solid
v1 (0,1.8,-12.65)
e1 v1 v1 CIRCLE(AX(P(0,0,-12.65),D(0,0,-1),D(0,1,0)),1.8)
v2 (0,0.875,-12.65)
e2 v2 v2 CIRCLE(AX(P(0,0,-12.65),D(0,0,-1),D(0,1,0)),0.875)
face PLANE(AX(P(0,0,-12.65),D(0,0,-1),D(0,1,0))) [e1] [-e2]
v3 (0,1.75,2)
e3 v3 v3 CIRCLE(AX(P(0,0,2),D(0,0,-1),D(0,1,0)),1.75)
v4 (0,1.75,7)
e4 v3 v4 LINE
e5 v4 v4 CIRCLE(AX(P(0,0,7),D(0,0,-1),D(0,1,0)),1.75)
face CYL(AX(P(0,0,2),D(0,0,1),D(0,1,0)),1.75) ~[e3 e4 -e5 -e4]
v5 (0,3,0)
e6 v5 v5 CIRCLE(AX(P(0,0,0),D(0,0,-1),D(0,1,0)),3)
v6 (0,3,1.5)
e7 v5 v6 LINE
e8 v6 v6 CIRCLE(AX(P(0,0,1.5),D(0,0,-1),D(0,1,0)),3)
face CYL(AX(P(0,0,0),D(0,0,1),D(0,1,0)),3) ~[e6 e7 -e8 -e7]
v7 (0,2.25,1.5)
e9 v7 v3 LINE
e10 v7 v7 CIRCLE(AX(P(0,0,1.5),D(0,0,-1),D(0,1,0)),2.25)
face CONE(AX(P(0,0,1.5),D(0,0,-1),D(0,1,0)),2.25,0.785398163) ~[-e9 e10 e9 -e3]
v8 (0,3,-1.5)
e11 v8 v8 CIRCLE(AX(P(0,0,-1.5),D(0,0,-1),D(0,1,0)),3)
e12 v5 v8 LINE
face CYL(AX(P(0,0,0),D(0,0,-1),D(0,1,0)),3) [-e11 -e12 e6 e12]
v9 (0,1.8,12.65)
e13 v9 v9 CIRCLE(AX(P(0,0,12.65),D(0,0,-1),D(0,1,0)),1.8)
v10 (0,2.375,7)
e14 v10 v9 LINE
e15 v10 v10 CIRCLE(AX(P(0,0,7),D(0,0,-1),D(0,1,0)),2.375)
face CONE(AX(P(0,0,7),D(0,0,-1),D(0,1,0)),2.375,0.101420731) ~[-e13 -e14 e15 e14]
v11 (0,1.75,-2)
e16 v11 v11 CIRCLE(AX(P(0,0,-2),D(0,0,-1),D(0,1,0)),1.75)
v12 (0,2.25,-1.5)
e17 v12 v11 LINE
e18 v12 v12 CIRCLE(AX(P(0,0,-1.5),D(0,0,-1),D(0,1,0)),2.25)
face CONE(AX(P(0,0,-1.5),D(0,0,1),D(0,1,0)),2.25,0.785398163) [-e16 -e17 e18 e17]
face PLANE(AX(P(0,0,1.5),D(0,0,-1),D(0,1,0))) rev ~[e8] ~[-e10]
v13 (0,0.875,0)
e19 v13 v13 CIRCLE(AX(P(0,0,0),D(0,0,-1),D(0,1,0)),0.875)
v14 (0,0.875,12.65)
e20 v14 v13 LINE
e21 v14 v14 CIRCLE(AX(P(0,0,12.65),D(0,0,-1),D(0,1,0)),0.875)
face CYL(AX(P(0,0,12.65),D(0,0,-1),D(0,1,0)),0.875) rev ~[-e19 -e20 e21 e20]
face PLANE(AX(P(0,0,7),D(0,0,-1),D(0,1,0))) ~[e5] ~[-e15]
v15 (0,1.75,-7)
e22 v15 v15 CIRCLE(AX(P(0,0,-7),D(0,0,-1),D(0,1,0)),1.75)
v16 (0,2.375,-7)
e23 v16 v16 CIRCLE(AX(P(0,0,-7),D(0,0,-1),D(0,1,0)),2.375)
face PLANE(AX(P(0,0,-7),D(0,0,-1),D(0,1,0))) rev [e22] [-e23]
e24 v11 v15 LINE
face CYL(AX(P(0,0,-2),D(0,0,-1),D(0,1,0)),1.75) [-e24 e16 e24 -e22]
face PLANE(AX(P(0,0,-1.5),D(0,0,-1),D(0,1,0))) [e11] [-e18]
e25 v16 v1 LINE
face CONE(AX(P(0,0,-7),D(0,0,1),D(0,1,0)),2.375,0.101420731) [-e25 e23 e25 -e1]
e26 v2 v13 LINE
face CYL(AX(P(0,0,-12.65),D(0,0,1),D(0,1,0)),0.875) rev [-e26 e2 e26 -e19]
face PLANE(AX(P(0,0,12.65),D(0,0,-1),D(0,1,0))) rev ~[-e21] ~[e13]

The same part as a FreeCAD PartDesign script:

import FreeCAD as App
import Part
import Sketcher
from FreeCAD import Vector
Q = App.Units.Quantity

doc = App.newDocument("Part")
body = doc.addObject("PartDesign::Body", "Body")

# Sketch on YZ plane
sketch1 = body.newObject("Sketcher::SketchObject", "Sketch")
sketch1.AttachmentSupport = (doc.getObject("YZ_Plane"), [""])
sketch1.MapMode = "FlatFace"
sketch1.addGeometry(Part.LineSegment(Vector(3, -1.5, 0), Vector(3, 1.5, 0)), False)
sketch1.addGeometry(Part.LineSegment(Vector(3, 1.5, 0), Vector(2.2, 1.5, 0)), False)
sketch1.addGeometry(Part.LineSegment(Vector(2.2, 1.5, 0), Vector(1.8, 2, 0)), False)
sketch1.addGeometry(Part.LineSegment(Vector(1.8, 2, 0), Vector(1.8, 7, 0)), False)
sketch1.addGeometry(Part.LineSegment(Vector(1.8, 7, 0), Vector(2.4, 7, 0)), False)
sketch1.addGeometry(Part.LineSegment(Vector(2.4, 7, 0), Vector(1.8, 12.7, 0)), False)
sketch1.addGeometry(Part.LineSegment(Vector(1.8, 12.7, 0), Vector(0.9, 12.7, 0)), False)
sketch1.addGeometry(Part.LineSegment(Vector(0.9, 12.7, 0), Vector(0.9, -12.7, 0)), False)
sketch1.addGeometry(Part.LineSegment(Vector(0.9, -12.7, 0), Vector(1.8, -12.7, 0)), False)
sketch1.addGeometry(Part.LineSegment(Vector(1.8, -12.7, 0), Vector(2.4, -7, 0)), False)
sketch1.addGeometry(Part.LineSegment(Vector(2.4, -7, 0), Vector(1.8, -7, 0)), False)
sketch1.addGeometry(Part.LineSegment(Vector(1.8, -7, 0), Vector(1.8, -2, 0)), False)
sketch1.addGeometry(Part.LineSegment(Vector(1.8, -2, 0), Vector(2.2, -1.5, 0)), False)
sketch1.addGeometry(Part.LineSegment(Vector(2.2, -1.5, 0), Vector(3, -1.5, 0)), False)
sketch1.addConstraint(Sketcher.Constraint("Coincident", 0, 2, 1, 1))
sketch1.addConstraint(Sketcher.Constraint("Coincident", 1, 2, 2, 1))
sketch1.addConstraint(Sketcher.Constraint("Coincident", 2, 2, 3, 1))
sketch1.addConstraint(Sketcher.Constraint("Coincident", 3, 2, 4, 1))
sketch1.addConstraint(Sketcher.Constraint("Coincident", 4, 2, 5, 1))
sketch1.addConstraint(Sketcher.Constraint("Coincident", 5, 2, 6, 1))
sketch1.addConstraint(Sketcher.Constraint("Coincident", 6, 2, 7, 1))
sketch1.addConstraint(Sketcher.Constraint("Coincident", 7, 2, 8, 1))
sketch1.addConstraint(Sketcher.Constraint("Coincident", 8, 2, 9, 1))
sketch1.addConstraint(Sketcher.Constraint("Coincident", 9, 2, 10, 1))
sketch1.addConstraint(Sketcher.Constraint("Coincident", 10, 2, 11, 1))
sketch1.addConstraint(Sketcher.Constraint("Coincident", 11, 2, 12, 1))
sketch1.addConstraint(Sketcher.Constraint("Coincident", 12, 2, 13, 1))
sketch1.addConstraint(Sketcher.Constraint("Coincident", 13, 2, 0, 1))
sketch1.addConstraint(Sketcher.Constraint("Vertical", 0))
sketch1.addConstraint(Sketcher.Constraint("Horizontal", 1))
sketch1.addConstraint(Sketcher.Constraint("Vertical", 3))
sketch1.addConstraint(Sketcher.Constraint("Horizontal", 4))
sketch1.addConstraint(Sketcher.Constraint("Horizontal", 6))
sketch1.addConstraint(Sketcher.Constraint("Vertical", 7))
sketch1.addConstraint(Sketcher.Constraint("Horizontal", 8))
sketch1.addConstraint(Sketcher.Constraint("Horizontal", 10))
sketch1.addConstraint(Sketcher.Constraint("Vertical", 11))
sketch1.addConstraint(Sketcher.Constraint("Horizontal", 13))
sketch1.addConstraint(Sketcher.Constraint("Symmetric", 5, 2, 8, 2, -1))
sketch1.addConstraint(Sketcher.Constraint("Symmetric", 4, 2, 9, 2, -1))
sketch1.addConstraint(Sketcher.Constraint("Symmetric", 2, 2, 11, 2, -1))
sketch1.addConstraint(Sketcher.Constraint("Symmetric", 1, 2, 12, 2, -1))
sketch1.addConstraint(Sketcher.Constraint("Perpendicular", 2, 12))
sketch1.addConstraint(Sketcher.Constraint("DistanceY", 0, 1, 0, 2, 3.0))
sketch1.addConstraint(Sketcher.Constraint("DistanceY", 7, 2, 7, 1, 25.3))
sketch1.addConstraint(Sketcher.Constraint("DistanceX", -1, 1, 0, 2, 3.0))
sketch1.addConstraint(Sketcher.Constraint("DistanceX", 2, 2, 1, 2, 0.5))
sketch1.addConstraint(Sketcher.Constraint("DistanceY", 1, 2, 3, 2, 5.5))
sketch1.addConstraint(Sketcher.Constraint("DistanceX", 6, 2, 4, 2, 1.5))
sketch1.addConstraint(Sketcher.Constraint("DistanceX", -1, 1, 2, 2, 1.75))
sketch1.addConstraint(Sketcher.Constraint("DistanceX", -1, 1, 5, 2, 1.8))
sketch1.addConstraint(Sketcher.Constraint("Angle", 5, Q("95.811 deg")))
revolution = body.newObject("PartDesign::Revolution", "Revolution")
revolution.Profile = sketch1
revolution.ReferenceAxis = (sketch1, ["V_Axis"])
revolution.Angle = 360

doc.recompute()
